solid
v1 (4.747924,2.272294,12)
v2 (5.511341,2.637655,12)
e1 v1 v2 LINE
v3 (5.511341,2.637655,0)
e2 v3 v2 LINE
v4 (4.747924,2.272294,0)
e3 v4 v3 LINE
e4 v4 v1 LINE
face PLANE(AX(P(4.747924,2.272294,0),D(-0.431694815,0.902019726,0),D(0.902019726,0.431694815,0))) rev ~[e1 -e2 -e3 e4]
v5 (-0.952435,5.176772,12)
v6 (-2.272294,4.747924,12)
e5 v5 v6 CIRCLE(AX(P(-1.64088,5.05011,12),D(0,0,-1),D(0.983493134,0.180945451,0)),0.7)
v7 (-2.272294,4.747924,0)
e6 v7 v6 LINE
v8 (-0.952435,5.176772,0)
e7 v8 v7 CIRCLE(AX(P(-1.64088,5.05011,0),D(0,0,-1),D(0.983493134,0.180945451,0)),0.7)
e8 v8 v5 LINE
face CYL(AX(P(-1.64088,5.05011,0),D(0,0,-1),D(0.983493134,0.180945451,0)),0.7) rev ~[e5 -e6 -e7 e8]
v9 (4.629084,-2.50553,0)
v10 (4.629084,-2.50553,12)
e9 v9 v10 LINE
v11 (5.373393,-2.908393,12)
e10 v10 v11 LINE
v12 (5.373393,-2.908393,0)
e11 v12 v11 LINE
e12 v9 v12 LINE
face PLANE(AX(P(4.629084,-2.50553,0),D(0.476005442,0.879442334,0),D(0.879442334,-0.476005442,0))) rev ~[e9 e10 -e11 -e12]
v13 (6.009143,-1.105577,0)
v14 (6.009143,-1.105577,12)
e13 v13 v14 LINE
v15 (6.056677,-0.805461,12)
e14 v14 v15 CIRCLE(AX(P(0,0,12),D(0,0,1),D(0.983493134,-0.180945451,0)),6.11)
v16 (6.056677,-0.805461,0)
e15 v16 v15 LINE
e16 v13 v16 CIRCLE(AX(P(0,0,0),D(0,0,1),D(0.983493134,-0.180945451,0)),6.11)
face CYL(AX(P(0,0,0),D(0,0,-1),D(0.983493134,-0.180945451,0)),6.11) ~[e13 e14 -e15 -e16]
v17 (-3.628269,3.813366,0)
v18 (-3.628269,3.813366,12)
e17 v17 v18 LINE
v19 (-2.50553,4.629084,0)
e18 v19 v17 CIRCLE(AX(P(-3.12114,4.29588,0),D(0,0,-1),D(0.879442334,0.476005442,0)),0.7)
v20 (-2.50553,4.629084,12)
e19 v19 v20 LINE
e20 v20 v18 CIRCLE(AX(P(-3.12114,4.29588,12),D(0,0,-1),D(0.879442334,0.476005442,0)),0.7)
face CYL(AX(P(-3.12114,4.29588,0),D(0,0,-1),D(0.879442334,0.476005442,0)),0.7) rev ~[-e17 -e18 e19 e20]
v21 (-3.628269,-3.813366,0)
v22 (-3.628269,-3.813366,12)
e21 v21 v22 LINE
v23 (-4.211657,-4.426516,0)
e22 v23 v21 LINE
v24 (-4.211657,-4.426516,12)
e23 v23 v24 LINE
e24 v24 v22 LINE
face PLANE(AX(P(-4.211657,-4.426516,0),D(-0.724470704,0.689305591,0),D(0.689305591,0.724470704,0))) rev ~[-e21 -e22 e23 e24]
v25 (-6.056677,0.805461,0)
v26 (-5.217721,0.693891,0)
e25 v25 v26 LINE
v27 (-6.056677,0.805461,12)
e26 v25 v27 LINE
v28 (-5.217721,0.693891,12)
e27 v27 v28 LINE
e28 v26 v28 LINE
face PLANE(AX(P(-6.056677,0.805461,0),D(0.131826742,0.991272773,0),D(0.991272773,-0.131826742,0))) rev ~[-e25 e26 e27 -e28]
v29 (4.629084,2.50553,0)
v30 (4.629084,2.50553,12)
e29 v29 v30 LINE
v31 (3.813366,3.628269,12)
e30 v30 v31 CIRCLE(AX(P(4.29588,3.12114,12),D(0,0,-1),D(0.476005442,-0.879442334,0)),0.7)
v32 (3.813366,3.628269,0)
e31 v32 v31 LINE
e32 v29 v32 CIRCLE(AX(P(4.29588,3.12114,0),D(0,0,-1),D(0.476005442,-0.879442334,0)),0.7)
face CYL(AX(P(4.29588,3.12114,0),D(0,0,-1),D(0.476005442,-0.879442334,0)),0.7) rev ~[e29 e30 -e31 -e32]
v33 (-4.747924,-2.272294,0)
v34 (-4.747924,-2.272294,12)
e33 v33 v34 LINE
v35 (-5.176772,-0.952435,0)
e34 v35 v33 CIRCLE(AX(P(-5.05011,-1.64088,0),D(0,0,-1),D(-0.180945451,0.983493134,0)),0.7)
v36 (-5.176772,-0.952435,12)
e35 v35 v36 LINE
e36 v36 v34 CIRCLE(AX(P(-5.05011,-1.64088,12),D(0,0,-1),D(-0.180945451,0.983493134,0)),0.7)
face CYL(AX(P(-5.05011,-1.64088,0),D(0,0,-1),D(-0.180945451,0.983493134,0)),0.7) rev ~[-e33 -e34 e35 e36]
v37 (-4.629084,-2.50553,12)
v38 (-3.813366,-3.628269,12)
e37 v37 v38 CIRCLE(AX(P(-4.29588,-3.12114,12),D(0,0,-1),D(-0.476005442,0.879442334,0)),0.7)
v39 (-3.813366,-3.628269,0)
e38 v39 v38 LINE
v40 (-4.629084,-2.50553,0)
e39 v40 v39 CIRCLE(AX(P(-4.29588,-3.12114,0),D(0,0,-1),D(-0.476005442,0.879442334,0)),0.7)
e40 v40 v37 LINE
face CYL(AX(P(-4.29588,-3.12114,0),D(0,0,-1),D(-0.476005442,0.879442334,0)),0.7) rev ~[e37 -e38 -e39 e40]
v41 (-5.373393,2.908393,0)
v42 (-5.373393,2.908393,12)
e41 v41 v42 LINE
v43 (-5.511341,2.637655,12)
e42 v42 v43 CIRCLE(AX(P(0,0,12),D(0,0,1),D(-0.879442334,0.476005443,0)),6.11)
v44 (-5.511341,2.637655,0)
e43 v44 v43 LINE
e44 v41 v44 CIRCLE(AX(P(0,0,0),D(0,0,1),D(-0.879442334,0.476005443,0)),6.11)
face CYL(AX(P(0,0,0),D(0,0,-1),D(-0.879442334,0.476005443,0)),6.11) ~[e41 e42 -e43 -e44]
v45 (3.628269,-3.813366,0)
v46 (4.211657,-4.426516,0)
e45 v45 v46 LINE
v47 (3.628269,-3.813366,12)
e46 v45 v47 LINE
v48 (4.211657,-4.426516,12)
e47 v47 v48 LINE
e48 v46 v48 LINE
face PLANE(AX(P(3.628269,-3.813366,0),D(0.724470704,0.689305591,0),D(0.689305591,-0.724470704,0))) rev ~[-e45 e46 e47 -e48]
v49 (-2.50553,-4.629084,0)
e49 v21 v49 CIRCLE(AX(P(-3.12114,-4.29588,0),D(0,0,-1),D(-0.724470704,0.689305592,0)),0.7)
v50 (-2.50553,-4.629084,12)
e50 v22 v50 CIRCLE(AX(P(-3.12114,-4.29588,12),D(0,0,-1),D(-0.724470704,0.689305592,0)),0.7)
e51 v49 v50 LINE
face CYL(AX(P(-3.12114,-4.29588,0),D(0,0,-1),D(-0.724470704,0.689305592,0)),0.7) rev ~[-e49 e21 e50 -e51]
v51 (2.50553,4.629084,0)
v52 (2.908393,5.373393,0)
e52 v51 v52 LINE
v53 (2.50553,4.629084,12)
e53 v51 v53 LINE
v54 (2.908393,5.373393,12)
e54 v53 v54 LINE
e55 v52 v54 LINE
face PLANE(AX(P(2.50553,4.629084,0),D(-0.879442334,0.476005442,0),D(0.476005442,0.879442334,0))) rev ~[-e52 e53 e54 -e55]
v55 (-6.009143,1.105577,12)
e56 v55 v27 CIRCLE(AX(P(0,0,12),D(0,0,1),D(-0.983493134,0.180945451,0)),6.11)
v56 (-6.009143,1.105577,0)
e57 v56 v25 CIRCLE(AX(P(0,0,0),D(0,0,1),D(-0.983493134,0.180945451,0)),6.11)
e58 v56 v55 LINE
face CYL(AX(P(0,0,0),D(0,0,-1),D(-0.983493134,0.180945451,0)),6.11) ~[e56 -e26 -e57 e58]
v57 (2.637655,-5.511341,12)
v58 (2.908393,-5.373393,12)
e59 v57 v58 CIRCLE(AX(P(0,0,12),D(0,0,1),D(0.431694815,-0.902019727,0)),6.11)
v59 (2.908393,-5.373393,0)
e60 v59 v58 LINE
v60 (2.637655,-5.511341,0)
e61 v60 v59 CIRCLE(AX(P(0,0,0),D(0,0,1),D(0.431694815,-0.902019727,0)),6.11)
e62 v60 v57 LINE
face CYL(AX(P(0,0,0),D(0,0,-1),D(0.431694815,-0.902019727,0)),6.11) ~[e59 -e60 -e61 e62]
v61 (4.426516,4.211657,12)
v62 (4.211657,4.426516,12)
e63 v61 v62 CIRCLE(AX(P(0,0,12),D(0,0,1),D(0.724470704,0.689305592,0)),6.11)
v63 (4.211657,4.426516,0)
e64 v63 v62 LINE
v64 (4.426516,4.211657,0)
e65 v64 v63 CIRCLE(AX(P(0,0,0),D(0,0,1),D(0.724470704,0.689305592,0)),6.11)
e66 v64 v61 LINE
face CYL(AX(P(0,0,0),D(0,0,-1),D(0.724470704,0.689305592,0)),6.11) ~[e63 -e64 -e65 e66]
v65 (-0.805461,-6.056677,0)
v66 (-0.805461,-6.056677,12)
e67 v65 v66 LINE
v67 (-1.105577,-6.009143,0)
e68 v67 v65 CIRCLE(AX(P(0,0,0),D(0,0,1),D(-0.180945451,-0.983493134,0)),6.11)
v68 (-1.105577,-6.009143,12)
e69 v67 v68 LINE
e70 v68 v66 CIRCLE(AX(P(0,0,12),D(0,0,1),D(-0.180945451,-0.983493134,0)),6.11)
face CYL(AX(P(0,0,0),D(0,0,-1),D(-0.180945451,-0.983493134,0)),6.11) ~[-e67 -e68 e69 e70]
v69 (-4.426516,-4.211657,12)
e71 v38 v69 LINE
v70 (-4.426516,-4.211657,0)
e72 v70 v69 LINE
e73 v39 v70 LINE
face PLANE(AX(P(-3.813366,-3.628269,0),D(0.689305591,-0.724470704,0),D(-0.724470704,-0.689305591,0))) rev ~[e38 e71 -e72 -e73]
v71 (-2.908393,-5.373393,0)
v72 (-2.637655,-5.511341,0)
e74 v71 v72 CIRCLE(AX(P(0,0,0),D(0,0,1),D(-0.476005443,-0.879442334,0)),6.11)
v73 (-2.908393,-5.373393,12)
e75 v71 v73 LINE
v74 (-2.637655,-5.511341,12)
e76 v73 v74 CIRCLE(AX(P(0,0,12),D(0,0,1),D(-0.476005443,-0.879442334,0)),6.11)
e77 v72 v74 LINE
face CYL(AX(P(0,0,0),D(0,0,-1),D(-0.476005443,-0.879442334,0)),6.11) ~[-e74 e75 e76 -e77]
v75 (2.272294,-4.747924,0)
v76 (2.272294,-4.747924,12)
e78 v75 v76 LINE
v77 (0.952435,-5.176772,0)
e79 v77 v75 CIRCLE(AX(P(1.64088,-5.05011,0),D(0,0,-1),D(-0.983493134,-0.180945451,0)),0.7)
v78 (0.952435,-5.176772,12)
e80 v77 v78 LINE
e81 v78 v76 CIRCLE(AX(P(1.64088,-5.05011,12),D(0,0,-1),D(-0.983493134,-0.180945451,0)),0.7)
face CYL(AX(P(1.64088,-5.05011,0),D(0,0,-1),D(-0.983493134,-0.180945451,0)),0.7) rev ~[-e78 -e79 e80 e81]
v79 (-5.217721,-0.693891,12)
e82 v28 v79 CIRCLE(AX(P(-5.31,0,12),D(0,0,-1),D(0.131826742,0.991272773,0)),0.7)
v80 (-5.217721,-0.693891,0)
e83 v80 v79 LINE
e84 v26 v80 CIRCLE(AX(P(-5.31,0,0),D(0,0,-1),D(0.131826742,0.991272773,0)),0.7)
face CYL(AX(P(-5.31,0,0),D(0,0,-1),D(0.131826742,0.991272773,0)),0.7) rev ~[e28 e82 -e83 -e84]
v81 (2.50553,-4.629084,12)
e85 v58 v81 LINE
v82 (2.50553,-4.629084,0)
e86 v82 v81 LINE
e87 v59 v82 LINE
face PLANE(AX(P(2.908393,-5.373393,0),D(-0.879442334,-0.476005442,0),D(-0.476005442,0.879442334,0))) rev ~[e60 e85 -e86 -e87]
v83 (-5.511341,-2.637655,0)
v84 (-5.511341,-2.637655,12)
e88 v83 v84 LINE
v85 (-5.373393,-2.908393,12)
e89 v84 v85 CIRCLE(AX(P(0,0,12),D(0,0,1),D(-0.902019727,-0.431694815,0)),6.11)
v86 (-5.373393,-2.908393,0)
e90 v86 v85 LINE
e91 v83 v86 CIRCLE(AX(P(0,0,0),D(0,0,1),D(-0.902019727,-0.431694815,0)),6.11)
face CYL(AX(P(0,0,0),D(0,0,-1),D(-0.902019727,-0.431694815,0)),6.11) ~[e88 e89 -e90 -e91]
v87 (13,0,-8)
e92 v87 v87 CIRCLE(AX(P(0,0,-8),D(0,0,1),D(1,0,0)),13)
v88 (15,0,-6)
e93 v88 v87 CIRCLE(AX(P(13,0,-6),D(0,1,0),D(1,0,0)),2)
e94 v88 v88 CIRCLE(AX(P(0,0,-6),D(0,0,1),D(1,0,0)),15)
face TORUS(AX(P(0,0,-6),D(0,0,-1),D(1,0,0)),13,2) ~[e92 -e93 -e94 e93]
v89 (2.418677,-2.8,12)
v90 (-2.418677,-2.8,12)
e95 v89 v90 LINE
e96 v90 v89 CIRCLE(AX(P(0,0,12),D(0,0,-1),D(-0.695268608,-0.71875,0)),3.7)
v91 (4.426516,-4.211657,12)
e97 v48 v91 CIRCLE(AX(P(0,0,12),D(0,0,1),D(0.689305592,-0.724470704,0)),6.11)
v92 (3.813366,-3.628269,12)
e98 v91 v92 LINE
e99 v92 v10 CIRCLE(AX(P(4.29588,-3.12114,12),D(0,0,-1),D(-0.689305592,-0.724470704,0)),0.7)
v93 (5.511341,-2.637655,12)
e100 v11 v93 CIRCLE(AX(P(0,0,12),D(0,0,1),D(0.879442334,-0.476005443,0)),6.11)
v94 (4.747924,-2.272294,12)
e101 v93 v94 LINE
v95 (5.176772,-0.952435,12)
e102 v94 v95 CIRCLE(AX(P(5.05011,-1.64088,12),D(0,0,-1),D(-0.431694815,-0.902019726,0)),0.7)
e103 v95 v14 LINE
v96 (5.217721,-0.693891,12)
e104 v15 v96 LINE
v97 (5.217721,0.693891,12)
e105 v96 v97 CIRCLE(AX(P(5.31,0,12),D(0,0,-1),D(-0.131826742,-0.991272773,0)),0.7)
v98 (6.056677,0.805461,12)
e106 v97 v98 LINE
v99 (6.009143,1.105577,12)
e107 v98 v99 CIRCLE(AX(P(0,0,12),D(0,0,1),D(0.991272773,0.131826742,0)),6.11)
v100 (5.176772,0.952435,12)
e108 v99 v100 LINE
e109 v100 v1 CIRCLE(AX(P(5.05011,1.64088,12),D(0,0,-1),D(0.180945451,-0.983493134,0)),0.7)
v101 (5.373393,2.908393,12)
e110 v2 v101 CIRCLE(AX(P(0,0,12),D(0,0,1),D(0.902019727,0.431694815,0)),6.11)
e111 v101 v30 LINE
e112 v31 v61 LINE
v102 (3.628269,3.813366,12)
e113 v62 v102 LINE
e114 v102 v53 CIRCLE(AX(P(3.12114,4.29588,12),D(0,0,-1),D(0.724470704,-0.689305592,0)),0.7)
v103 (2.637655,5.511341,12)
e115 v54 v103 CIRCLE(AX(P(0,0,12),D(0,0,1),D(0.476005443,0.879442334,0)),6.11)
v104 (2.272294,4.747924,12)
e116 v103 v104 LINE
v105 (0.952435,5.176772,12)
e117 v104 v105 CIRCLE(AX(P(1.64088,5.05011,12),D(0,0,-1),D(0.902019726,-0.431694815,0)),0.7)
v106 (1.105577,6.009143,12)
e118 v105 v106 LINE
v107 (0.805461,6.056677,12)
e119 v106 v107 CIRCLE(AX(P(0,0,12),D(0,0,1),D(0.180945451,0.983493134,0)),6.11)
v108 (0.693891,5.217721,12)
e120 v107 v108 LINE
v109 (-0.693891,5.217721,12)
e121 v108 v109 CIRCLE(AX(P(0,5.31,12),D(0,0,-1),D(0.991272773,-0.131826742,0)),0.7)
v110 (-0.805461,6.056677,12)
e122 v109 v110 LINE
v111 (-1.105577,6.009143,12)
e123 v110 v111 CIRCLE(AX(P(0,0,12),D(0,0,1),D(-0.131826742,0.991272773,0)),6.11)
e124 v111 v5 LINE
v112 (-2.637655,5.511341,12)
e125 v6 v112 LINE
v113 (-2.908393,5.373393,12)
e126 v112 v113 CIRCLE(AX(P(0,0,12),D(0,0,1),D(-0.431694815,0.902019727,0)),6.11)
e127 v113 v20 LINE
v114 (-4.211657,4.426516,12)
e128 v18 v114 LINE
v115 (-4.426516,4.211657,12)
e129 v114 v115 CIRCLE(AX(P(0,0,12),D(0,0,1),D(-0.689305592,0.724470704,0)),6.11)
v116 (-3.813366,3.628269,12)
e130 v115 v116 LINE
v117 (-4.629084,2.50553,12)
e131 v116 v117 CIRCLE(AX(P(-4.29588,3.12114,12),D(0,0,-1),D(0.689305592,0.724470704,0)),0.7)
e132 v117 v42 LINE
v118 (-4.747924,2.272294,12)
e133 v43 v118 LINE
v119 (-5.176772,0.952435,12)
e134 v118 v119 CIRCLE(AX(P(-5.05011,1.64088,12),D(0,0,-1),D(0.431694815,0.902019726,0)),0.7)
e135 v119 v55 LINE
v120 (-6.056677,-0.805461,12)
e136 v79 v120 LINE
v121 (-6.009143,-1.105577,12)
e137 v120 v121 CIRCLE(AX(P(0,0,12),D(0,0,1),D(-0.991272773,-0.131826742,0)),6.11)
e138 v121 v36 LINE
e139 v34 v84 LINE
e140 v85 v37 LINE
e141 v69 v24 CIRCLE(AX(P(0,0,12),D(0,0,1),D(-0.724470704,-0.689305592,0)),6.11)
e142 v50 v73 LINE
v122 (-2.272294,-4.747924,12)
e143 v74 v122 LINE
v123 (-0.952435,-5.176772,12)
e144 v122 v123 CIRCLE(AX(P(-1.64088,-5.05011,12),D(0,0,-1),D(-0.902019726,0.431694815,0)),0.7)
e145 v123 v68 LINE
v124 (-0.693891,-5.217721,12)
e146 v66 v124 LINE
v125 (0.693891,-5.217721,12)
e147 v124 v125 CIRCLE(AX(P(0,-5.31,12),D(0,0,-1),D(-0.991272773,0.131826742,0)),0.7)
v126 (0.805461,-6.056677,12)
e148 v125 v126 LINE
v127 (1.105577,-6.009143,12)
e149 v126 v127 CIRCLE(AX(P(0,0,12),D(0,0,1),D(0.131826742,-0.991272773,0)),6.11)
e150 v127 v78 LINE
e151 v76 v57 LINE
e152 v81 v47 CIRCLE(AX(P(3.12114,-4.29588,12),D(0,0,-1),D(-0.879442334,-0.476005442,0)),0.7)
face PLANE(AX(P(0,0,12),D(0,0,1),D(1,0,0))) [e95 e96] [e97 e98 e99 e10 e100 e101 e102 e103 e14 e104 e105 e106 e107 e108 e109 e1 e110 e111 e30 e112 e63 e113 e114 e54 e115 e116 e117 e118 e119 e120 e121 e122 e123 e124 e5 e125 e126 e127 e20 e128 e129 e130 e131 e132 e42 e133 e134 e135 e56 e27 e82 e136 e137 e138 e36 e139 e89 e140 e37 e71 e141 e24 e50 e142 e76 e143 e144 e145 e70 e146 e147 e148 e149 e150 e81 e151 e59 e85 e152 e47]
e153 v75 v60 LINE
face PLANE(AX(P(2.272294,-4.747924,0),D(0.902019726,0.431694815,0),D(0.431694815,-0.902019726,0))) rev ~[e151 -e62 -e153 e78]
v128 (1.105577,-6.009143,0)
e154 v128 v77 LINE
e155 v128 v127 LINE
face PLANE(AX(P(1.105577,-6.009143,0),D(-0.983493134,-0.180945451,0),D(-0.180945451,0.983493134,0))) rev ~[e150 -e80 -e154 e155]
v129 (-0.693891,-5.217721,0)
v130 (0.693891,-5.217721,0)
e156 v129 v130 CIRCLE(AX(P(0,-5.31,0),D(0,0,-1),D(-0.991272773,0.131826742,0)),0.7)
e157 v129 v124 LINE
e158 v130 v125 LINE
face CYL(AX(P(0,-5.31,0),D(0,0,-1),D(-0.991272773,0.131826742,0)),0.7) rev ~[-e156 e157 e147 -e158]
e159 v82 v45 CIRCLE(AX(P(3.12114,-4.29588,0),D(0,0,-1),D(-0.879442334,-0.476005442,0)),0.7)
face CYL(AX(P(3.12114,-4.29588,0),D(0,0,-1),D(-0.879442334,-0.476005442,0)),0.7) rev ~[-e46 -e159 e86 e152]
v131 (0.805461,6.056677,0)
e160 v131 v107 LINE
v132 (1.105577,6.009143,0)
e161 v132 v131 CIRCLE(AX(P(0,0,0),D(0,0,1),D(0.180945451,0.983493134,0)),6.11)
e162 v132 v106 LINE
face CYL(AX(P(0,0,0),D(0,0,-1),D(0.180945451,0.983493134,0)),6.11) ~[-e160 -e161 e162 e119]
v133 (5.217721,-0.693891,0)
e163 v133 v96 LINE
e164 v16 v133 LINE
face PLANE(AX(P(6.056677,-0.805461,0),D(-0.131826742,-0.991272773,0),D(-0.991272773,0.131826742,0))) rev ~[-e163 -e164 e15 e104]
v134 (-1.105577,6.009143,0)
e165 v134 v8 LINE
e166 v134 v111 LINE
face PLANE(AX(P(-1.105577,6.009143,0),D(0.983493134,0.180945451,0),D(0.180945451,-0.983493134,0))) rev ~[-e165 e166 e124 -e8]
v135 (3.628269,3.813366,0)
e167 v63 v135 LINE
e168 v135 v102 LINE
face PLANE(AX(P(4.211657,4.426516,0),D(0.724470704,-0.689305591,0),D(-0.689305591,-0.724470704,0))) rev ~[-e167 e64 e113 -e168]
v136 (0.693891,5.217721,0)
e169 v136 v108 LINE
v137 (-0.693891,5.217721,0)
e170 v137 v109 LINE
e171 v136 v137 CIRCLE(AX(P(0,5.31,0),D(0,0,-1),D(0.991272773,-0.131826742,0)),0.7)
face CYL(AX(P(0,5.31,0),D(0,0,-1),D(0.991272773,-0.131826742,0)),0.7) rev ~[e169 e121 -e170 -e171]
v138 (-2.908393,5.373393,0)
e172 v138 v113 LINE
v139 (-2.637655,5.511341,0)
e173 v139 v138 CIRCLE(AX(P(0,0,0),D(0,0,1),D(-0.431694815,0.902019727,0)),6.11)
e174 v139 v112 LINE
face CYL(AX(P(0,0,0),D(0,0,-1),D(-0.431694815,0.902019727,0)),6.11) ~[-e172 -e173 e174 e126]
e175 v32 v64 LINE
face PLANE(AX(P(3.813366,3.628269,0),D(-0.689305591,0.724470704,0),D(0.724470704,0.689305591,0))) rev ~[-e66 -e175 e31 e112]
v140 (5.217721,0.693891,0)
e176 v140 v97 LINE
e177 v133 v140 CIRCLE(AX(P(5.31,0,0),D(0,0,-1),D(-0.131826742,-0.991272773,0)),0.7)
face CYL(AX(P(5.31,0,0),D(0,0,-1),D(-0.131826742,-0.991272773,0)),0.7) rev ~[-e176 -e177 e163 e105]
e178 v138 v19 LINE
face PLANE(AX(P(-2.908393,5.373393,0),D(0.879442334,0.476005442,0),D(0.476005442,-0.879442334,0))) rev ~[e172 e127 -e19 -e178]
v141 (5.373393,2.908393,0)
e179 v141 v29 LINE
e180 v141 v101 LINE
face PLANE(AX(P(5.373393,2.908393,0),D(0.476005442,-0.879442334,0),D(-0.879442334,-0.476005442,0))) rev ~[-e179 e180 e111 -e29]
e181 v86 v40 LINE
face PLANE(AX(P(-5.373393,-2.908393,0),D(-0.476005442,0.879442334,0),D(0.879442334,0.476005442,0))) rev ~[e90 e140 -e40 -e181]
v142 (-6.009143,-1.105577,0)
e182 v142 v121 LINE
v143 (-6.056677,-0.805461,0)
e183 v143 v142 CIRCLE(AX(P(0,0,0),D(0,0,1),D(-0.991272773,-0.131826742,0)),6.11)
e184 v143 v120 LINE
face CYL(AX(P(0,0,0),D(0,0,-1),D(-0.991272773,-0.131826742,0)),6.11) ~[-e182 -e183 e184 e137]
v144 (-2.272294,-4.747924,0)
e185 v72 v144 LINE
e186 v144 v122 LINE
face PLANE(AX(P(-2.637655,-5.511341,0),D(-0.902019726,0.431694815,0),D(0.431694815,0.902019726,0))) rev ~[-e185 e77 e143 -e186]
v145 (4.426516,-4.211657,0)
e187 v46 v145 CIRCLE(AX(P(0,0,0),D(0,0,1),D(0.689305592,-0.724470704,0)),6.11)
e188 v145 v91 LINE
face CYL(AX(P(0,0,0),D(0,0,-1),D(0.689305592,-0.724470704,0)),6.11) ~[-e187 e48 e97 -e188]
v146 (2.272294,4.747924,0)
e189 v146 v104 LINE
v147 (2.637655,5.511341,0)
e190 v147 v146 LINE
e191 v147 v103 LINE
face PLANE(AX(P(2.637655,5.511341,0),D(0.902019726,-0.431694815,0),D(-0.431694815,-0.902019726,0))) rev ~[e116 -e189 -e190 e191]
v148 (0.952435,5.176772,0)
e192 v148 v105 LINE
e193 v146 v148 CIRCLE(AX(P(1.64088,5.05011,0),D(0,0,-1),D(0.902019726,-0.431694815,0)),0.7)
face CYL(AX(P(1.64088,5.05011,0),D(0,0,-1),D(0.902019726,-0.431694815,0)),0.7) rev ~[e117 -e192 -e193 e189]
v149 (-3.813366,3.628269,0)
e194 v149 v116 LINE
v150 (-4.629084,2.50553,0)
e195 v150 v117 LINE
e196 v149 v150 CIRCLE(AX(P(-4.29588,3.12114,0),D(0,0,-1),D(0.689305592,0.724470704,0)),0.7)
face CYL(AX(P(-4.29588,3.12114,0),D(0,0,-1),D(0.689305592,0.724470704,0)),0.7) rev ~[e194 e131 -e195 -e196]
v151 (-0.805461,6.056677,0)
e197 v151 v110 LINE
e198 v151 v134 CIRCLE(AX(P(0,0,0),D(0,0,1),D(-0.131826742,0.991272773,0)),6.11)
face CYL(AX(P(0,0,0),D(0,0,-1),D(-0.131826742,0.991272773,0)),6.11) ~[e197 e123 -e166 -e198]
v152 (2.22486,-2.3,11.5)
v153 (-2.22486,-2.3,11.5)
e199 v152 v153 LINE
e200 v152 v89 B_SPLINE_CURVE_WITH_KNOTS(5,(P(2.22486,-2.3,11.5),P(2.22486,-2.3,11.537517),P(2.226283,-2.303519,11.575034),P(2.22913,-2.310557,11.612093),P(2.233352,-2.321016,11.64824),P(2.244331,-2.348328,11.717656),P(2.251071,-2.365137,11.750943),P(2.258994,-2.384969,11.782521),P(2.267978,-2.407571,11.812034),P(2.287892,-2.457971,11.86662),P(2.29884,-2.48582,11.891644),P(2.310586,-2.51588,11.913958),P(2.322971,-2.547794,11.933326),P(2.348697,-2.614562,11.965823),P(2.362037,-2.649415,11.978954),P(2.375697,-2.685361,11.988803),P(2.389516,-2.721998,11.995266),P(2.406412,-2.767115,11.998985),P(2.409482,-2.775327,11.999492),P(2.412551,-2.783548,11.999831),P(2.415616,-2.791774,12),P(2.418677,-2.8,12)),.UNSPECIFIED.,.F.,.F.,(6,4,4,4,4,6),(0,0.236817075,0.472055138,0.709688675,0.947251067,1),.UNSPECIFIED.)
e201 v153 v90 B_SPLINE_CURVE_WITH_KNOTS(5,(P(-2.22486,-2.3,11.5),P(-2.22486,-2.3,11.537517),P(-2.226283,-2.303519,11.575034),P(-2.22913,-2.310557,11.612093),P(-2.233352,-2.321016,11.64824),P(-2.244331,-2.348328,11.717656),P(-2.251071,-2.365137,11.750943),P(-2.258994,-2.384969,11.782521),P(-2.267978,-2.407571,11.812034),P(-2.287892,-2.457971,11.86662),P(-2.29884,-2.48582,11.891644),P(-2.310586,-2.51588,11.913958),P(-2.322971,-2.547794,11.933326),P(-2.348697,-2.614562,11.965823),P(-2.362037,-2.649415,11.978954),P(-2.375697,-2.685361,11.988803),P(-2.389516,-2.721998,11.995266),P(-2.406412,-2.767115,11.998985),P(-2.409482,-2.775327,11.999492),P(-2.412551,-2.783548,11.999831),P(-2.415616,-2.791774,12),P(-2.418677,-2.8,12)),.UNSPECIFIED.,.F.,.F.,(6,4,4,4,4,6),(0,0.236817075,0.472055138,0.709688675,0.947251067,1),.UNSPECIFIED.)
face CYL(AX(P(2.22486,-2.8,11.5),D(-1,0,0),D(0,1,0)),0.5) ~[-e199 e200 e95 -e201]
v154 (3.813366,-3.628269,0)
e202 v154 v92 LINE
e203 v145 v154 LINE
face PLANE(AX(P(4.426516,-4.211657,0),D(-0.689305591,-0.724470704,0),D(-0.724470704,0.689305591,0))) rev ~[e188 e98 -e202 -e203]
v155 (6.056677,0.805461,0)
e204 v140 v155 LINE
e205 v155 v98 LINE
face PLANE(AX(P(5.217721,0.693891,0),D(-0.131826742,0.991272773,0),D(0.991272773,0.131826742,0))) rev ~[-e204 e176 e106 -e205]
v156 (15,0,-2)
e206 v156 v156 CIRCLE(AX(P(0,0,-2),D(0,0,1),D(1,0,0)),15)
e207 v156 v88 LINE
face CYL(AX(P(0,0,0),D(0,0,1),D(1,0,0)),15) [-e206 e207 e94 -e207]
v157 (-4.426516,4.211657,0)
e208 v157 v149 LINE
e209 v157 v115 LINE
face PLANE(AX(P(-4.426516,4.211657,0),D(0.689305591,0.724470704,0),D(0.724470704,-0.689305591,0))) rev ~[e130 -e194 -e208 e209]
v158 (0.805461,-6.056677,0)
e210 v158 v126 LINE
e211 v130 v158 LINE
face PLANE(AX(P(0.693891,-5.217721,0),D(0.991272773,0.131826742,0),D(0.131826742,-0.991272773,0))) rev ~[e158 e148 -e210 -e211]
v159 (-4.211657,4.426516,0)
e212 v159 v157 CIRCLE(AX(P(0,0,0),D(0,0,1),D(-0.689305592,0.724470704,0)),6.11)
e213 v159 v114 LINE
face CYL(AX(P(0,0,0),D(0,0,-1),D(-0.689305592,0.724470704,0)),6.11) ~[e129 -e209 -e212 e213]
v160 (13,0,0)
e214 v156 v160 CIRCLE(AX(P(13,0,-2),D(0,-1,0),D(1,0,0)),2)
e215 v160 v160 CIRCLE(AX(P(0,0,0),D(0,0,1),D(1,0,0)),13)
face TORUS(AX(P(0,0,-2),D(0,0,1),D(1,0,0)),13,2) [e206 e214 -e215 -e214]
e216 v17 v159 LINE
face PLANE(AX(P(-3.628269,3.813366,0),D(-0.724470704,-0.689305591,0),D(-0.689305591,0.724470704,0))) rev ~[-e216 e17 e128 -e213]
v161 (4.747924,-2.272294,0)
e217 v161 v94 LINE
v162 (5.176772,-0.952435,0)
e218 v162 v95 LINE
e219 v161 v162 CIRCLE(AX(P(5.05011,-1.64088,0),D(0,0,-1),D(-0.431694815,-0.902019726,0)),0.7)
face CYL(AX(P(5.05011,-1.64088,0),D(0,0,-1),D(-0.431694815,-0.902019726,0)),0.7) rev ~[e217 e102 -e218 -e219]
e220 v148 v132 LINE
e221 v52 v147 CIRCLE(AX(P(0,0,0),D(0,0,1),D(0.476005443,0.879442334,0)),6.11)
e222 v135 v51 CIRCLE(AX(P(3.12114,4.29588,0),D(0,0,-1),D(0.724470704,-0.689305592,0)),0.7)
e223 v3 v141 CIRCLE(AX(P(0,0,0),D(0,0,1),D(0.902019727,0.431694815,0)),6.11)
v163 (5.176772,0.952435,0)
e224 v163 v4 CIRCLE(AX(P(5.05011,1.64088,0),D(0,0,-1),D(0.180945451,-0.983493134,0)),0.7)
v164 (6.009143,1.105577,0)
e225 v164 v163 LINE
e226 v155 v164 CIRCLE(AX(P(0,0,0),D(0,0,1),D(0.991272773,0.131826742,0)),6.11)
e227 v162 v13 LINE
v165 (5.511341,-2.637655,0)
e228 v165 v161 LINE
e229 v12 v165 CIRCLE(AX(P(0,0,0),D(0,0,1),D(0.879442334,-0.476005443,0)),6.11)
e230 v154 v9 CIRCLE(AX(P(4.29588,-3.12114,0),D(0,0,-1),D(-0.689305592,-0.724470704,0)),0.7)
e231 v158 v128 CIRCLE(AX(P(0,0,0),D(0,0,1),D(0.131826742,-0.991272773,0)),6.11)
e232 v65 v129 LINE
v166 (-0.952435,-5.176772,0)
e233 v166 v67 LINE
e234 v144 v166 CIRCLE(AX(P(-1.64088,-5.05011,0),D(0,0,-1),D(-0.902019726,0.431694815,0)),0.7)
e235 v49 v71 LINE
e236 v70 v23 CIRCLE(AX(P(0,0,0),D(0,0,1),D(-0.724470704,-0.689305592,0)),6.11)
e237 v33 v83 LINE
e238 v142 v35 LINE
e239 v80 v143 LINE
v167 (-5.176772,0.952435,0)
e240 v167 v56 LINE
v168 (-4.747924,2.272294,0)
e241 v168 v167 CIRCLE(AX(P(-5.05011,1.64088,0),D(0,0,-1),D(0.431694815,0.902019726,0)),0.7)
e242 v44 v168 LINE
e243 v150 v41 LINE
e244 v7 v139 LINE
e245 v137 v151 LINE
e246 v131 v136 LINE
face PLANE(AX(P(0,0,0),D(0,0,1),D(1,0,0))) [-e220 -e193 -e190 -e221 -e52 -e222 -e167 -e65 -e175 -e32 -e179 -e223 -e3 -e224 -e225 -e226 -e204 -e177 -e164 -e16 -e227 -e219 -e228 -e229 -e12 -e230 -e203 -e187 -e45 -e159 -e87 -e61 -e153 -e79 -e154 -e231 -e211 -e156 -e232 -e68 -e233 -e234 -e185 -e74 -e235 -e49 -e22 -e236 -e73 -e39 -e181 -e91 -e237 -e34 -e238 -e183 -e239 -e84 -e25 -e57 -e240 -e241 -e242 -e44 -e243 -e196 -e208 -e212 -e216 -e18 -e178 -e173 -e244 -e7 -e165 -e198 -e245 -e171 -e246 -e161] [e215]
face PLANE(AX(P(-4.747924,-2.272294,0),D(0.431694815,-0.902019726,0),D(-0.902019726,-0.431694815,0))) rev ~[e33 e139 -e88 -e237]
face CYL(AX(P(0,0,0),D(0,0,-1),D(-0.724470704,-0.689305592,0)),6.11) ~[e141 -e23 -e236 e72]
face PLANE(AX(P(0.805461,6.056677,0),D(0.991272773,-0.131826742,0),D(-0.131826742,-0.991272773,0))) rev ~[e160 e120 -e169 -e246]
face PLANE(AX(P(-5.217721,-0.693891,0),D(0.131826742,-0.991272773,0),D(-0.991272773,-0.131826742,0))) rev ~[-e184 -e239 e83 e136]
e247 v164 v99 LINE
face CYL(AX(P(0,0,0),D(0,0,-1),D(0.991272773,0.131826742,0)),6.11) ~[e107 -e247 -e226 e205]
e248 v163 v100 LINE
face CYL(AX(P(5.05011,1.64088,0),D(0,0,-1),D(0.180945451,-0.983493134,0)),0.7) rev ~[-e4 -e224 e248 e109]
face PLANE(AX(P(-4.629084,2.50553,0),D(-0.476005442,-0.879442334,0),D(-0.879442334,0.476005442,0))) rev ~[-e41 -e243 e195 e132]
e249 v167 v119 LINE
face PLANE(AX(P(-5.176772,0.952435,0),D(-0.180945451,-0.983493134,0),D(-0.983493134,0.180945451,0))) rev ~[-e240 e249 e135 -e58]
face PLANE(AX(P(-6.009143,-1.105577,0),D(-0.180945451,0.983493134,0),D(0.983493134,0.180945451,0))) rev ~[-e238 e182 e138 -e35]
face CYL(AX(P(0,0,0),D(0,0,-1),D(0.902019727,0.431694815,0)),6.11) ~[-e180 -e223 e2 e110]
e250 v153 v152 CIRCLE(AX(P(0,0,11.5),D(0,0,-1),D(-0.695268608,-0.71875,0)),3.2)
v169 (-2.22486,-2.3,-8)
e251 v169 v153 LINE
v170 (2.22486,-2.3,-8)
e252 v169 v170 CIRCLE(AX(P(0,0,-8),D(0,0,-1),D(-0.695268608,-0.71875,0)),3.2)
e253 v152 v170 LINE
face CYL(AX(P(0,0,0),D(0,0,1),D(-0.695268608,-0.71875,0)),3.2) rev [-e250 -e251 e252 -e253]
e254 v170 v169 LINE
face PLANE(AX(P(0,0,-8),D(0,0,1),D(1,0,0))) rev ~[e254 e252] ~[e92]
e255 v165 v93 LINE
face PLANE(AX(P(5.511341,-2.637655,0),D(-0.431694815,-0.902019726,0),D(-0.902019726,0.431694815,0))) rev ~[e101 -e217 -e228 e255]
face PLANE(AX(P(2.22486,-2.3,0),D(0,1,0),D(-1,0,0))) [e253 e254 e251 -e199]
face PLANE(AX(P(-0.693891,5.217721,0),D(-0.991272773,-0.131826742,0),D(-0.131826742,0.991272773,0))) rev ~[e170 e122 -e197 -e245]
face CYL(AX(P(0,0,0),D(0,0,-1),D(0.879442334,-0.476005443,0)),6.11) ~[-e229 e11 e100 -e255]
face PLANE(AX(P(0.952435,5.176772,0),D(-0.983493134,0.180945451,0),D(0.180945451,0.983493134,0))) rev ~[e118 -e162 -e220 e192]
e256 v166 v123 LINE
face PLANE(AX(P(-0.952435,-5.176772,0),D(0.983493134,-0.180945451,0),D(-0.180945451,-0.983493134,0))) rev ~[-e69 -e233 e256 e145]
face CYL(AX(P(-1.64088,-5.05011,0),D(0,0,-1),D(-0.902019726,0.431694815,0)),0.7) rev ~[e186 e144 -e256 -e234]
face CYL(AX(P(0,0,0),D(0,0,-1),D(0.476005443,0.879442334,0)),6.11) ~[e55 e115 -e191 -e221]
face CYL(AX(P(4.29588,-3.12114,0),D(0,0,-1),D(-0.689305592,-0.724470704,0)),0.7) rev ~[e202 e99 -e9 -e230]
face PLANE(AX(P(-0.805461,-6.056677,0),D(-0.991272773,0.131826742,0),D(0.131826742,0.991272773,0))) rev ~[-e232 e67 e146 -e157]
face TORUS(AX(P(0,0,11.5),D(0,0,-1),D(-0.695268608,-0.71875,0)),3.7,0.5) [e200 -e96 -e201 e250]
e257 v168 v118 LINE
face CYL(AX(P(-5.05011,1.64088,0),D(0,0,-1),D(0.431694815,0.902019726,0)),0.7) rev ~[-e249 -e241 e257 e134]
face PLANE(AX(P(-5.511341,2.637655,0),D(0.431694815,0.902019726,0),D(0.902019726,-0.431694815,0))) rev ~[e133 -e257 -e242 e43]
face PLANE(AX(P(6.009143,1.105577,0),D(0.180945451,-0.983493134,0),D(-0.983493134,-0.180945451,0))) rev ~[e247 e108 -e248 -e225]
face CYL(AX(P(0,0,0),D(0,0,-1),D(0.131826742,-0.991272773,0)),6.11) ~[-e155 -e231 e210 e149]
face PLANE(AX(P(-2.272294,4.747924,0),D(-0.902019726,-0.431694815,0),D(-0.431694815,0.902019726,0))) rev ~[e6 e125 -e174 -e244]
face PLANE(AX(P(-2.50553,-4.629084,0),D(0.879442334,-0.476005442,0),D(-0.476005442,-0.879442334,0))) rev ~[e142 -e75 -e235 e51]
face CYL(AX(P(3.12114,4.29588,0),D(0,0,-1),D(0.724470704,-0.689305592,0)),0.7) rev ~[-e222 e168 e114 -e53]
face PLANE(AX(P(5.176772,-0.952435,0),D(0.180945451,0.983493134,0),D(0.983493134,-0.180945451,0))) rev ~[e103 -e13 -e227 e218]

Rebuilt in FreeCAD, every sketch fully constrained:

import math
import FreeCAD as App
import Part
import Sketcher

V = App.Vector


def edges_at(feature, points):
    """Names of the edges that pass closest to the given points."""
    edges = feature.Shape.Edges
    near = lambda p: min(range(len(edges)), key=lambda i: edges[i].distToShape(Part.Vertex(*p))[0])
    return sorted({f"Edge{near(p) + 1}" for p in points})

doc = App.newDocument("Part")
body = doc.addObject("PartDesign::Body", "Body")

# Sketch on XY plane
sketch1 = body.newObject("Sketcher::SketchObject", "Sketch")
sketch1.AttachmentSupport = (doc.getObject("XY_Plane"), [""])
sketch1.MapMode = "FlatFace"
sketch1.addGeometry([
    Part.LineSegment(V(5.22, 0.69, 0), V(6.06, 0.81, 0)),  # 0
    Part.ArcOfCircle(Part.Circle(V(0, 0, 0), V(0, 0, 1), 6.11), math.radians(7.58), math.radians(10.42)),  # 1
    Part.LineSegment(V(6.01, 1.11, 0), V(5.18, 0.95, 0)),  # 2
    Part.ArcOfCircle(Part.Circle(V(5.05, 1.64, 0), V(0, 0, 1), 0.7), math.radians(116), math.radians(280)),  # 3
    Part.LineSegment(V(4.75, 2.27, 0), V(5.51, 2.64, 0)),  # 4
    Part.ArcOfCircle(Part.Circle(V(0, 0, 0), V(0, 0, 1), 6.11), math.radians(25.58), math.radians(28.42)),  # 5
    Part.LineSegment(V(5.37, 2.91, 0), V(4.63, 2.51, 0)),  # 6
    Part.ArcOfCircle(Part.Circle(V(4.3, 3.12, 0), V(0, 0, 1), 0.7), math.radians(134), math.radians(298)),  # 7
    Part.LineSegment(V(3.81, 3.63, 0), V(4.43, 4.21, 0)),  # 8
    Part.ArcOfCircle(Part.Circle(V(0, 0, 0), V(0, 0, 1), 6.11), math.radians(43.58), math.radians(46.42)),  # 9
    Part.LineSegment(V(4.21, 4.43, 0), V(3.63, 3.81, 0)),  # 10
    Part.ArcOfCircle(Part.Circle(V(3.12, 4.3, 0), V(0, 0, 1), 0.7), math.radians(152), math.radians(316)),  # 11
    Part.LineSegment(V(2.51, 4.63, 0), V(2.91, 5.37, 0)),  # 12
    Part.ArcOfCircle(Part.Circle(V(0, 0, 0), V(0, 0, 1), 6.11), math.radians(61.58), math.radians(64.42)),  # 13
    Part.LineSegment(V(2.64, 5.51, 0), V(2.27, 4.75, 0)),  # 14
    Part.ArcOfCircle(Part.Circle(V(1.64, 5.05, 0), V(0, 0, 1), 0.7), math.radians(170), math.radians(334)),  # 15
    Part.LineSegment(V(0.95, 5.18, 0), V(1.11, 6.01, 0)),  # 16
    Part.ArcOfCircle(Part.Circle(V(0, 0, 0), V(0, 0, 1), 6.11), math.radians(79.58), math.radians(82.42)),  # 17
    Part.LineSegment(V(0.81, 6.06, 0), V(0.69, 5.22, 0)),  # 18
    Part.ArcOfCircle(Part.Circle(V(0, 5.31, 0), V(0, 0, 1), 0.7), math.radians(-172), math.radians(-8)),  # 19
    Part.LineSegment(V(-0.69, 5.22, 0), V(-0.81, 6.06, 0)),  # 20
    Part.ArcOfCircle(Part.Circle(V(0, 0, 0), V(0, 0, 1), 6.11), math.radians(97.58), math.radians(100.42)),  # 21
    Part.LineSegment(V(-1.11, 6.01, 0), V(-0.95, 5.18, 0)),  # 22
    Part.ArcOfCircle(Part.Circle(V(-1.64, 5.05, 0), V(0, 0, 1), 0.7), math.radians(-154), math.radians(10)),  # 23
    Part.LineSegment(V(-2.27, 4.75, 0), V(-2.64, 5.51, 0)),  # 24
    Part.ArcOfCircle(Part.Circle(V(0, 0, 0), V(0, 0, 1), 6.11), math.radians(115.58), math.radians(118.42)),  # 25
    Part.LineSegment(V(-2.91, 5.37, 0), V(-2.51, 4.63, 0)),  # 26
    Part.ArcOfCircle(Part.Circle(V(-3.12, 4.3, 0), V(0, 0, 1), 0.7), math.radians(-136), math.radians(28)),  # 27
    Part.LineSegment(V(-3.63, 3.81, 0), V(-4.21, 4.43, 0)),  # 28
    Part.ArcOfCircle(Part.Circle(V(0, 0, 0), V(0, 0, 1), 6.11), math.radians(133.58), math.radians(136.42)),  # 29
    Part.LineSegment(V(-4.43, 4.21, 0), V(-3.81, 3.63, 0)),  # 30
    Part.ArcOfCircle(Part.Circle(V(-4.3, 3.12, 0), V(0, 0, 1), 0.7), math.radians(-118), math.radians(46)),  # 31
    Part.LineSegment(V(-4.63, 2.51, 0), V(-5.37, 2.91, 0)),  # 32
    Part.ArcOfCircle(Part.Circle(V(0, 0, 0), V(0, 0, 1), 6.11), math.radians(151.58), math.radians(154.42)),  # 33
    Part.LineSegment(V(-5.51, 2.64, 0), V(-4.75, 2.27, 0)),  # 34
    Part.ArcOfCircle(Part.Circle(V(-5.05, 1.64, 0), V(0, 0, 1), 0.7), math.radians(-100), math.radians(64)),  # 35
    Part.LineSegment(V(-5.18, 0.95, 0), V(-6.01, 1.11, 0)),  # 36
    Part.ArcOfCircle(Part.Circle(V(0, 0, 0), V(0, 0, 1), 6.11), math.radians(169.58), math.radians(172.42)),  # 37
    Part.LineSegment(V(-6.06, 0.81, 0), V(-5.22, 0.69, 0)),  # 38
    Part.ArcOfCircle(Part.Circle(V(-5.31, 0, 0), V(0, 0, 1), 0.7), math.radians(-82), math.radians(82)),  # 39
    Part.LineSegment(V(-5.22, -0.69, 0), V(-6.06, -0.81, 0)),  # 40
    Part.ArcOfCircle(Part.Circle(V(0, 0, 0), V(0, 0, 1), 6.11), math.radians(-172.42), math.radians(-169.58)),  # 41
    Part.LineSegment(V(-6.01, -1.11, 0), V(-5.18, -0.95, 0)),  # 42
    Part.ArcOfCircle(Part.Circle(V(-5.05, -1.64, 0), V(0, 0, 1), 0.7), math.radians(-64), math.radians(100)),  # 43
    Part.LineSegment(V(-4.75, -2.27, 0), V(-5.51, -2.64, 0)),  # 44
    Part.ArcOfCircle(Part.Circle(V(0, 0, 0), V(0, 0, 1), 6.11), math.radians(-154.42), math.radians(-151.58)),  # 45
    Part.LineSegment(V(-5.37, -2.91, 0), V(-4.63, -2.51, 0)),  # 46
    Part.ArcOfCircle(Part.Circle(V(-4.3, -3.12, 0), V(0, 0, 1), 0.7), math.radians(-46), math.radians(118)),  # 47
    Part.LineSegment(V(-3.81, -3.63, 0), V(-4.43, -4.21, 0)),  # 48
    Part.ArcOfCircle(Part.Circle(V(0, 0, 0), V(0, 0, 1), 6.11), math.radians(-136.42), math.radians(-133.58)),  # 49
    Part.LineSegment(V(-4.21, -4.43, 0), V(-3.63, -3.81, 0)),  # 50
    Part.ArcOfCircle(Part.Circle(V(-3.12, -4.3, 0), V(0, 0, 1), 0.7), math.radians(-28), math.radians(136)),  # 51
    Part.LineSegment(V(-2.51, -4.63, 0), V(-2.91, -5.37, 0)),  # 52
    Part.ArcOfCircle(Part.Circle(V(0, 0, 0), V(0, 0, 1), 6.11), math.radians(-118.42), math.radians(-115.58)),  # 53
    Part.LineSegment(V(-2.64, -5.51, 0), V(-2.27, -4.75, 0)),  # 54
    Part.ArcOfCircle(Part.Circle(V(-1.64, -5.05, 0), V(0, 0, 1), 0.7), math.radians(-10), math.radians(154)),  # 55
    Part.LineSegment(V(-0.95, -5.18, 0), V(-1.11, -6.01, 0)),  # 56
    Part.ArcOfCircle(Part.Circle(V(0, 0, 0), V(0, 0, 1), 6.11), math.radians(-100.42), math.radians(-97.58)),  # 57
    Part.LineSegment(V(-0.81, -6.06, 0), V(-0.69, -5.22, 0)),  # 58
    Part.ArcOfCircle(Part.Circle(V(0, -5.31, 0), V(0, 0, 1), 0.7), math.radians(8), math.radians(172)),  # 59
    Part.LineSegment(V(0.69, -5.22, 0), V(0.81, -6.06, 0)),  # 60
    Part.ArcOfCircle(Part.Circle(V(0, 0, 0), V(0, 0, 1), 6.11), math.radians(-82.42), math.radians(-79.58)),  # 61
    Part.LineSegment(V(1.11, -6.01, 0), V(0.95, -5.18, 0)),  # 62
    Part.ArcOfCircle(Part.Circle(V(1.64, -5.05, 0), V(0, 0, 1), 0.7), math.radians(26), math.radians(190)),  # 63
    Part.LineSegment(V(2.27, -4.75, 0), V(2.64, -5.51, 0)),  # 64
    Part.ArcOfCircle(Part.Circle(V(0, 0, 0), V(0, 0, 1), 6.11), math.radians(-64.42), math.radians(-61.58)),  # 65
    Part.LineSegment(V(2.91, -5.37, 0), V(2.51, -4.63, 0)),  # 66
    Part.ArcOfCircle(Part.Circle(V(3.12, -4.3, 0), V(0, 0, 1), 0.7), math.radians(44), math.radians(208)),  # 67
    Part.LineSegment(V(3.63, -3.81, 0), V(4.21, -4.43, 0)),  # 68
    Part.ArcOfCircle(Part.Circle(V(0, 0, 0), V(0, 0, 1), 6.11), math.radians(-46.42), math.radians(-43.58)),  # 69
    Part.LineSegment(V(4.43, -4.21, 0), V(3.81, -3.63, 0)),  # 70
    Part.ArcOfCircle(Part.Circle(V(4.3, -3.12, 0), V(0, 0, 1), 0.7), math.radians(62), math.radians(226)),  # 71
    Part.LineSegment(V(4.63, -2.51, 0), V(5.37, -2.91, 0)),  # 72
    Part.ArcOfCircle(Part.Circle(V(0, 0, 0), V(0, 0, 1), 6.11), math.radians(-28.42), math.radians(-25.58)),  # 73
    Part.LineSegment(V(5.51, -2.64, 0), V(4.75, -2.27, 0)),  # 74
    Part.ArcOfCircle(Part.Circle(V(5.05, -1.64, 0), V(0, 0, 1), 0.7), math.radians(80), math.radians(244)),  # 75
    Part.LineSegment(V(5.18, -0.95, 0), V(6.01, -1.11, 0)),  # 76
    Part.ArcOfCircle(Part.Circle(V(0, 0, 0), V(0, 0, 1), 6.11), math.radians(-10.42), math.radians(-7.58)),  # 77
    Part.LineSegment(V(6.06, -0.81, 0), V(5.22, -0.69, 0)),  # 78
    Part.ArcOfCircle(Part.Circle(V(5.31, 0, 0), V(0, 0, 1), 0.7), math.radians(98), math.radians(262)),  # 79
    Part.LineSegment(V(2.22, -2.3, 0), V(-2.22, -2.3, 0)),  # 80
    Part.ArcOfCircle(Part.Circle(V(0, 0, 0), V(0, 0, 1), 3.2), math.radians(-46), math.radians(226)),  # 81
], False)
sketch1.addConstraint([
    Sketcher.Constraint("Coincident", 0, 2, 1, 1),
    Sketcher.Constraint("Coincident", 1, 2, 2, 1),
    Sketcher.Constraint("Tangent", 2, 2, 3, 2),
    Sketcher.Constraint("Tangent", 3, 1, 4, 1),
    Sketcher.Constraint("Coincident", 4, 2, 5, 1),
    Sketcher.Constraint("Coincident", 5, 2, 6, 1),
    Sketcher.Constraint("Tangent", 6, 2, 7, 2),
    Sketcher.Constraint("Tangent", 7, 1, 8, 1),
    Sketcher.Constraint("Coincident", 8, 2, 9, 1),
    Sketcher.Constraint("Coincident", 9, 2, 10, 1),
    Sketcher.Constraint("Tangent", 10, 2, 11, 2),
    Sketcher.Constraint("Tangent", 11, 1, 12, 1),
    Sketcher.Constraint("Coincident", 12, 2, 13, 1),
    Sketcher.Constraint("Coincident", 13, 2, 14, 1),
    Sketcher.Constraint("Tangent", 14, 2, 15, 2),
    Sketcher.Constraint("Tangent", 15, 1, 16, 1),
    Sketcher.Constraint("Coincident", 16, 2, 17, 1),
    Sketcher.Constraint("Coincident", 17, 2, 18, 1),
    Sketcher.Constraint("Tangent", 18, 2, 19, 2),
    Sketcher.Constraint("Tangent", 19, 1, 20, 1),
    Sketcher.Constraint("Coincident", 20, 2, 21, 1),
    Sketcher.Constraint("Coincident", 21, 2, 22, 1),
    Sketcher.Constraint("Tangent", 22, 2, 23, 2),
    Sketcher.Constraint("Tangent", 23, 1, 24, 1),
    Sketcher.Constraint("Coincident", 24, 2, 25, 1),
    Sketcher.Constraint("Coincident", 25, 2, 26, 1),
    Sketcher.Constraint("Tangent", 26, 2, 27, 2),
    Sketcher.Constraint("Tangent", 27, 1, 28, 1),
    Sketcher.Constraint("Coincident", 28, 2, 29, 1),
    Sketcher.Constraint("Coincident", 29, 2, 30, 1),
    Sketcher.Constraint("Tangent", 30, 2, 31, 2),
    Sketcher.Constraint("Tangent", 31, 1, 32, 1),
    Sketcher.Constraint("Coincident", 32, 2, 33, 1),
    Sketcher.Constraint("Coincident", 33, 2, 34, 1),
    Sketcher.Constraint("Tangent", 34, 2, 35, 2),
    Sketcher.Constraint("Tangent", 35, 1, 36, 1),
    Sketcher.Constraint("Coincident", 36, 2, 37, 1),
    Sketcher.Constraint("Coincident", 37, 2, 38, 1),
    Sketcher.Constraint("Tangent", 38, 2, 39, 2),
    Sketcher.Constraint("Tangent", 39, 1, 40, 1),
    Sketcher.Constraint("Coincident", 40, 2, 41, 1),
    Sketcher.Constraint("Coincident", 41, 2, 42, 1),
    Sketcher.Constraint("Tangent", 42, 2, 43, 2),
    Sketcher.Constraint("Tangent", 43, 1, 44, 1),
    Sketcher.Constraint("Coincident", 44, 2, 45, 1),
    Sketcher.Constraint("Coincident", 45, 2, 46, 1),
    Sketcher.Constraint("Tangent", 46, 2, 47, 2),
    Sketcher.Constraint("Tangent", 47, 1, 48, 1),
    Sketcher.Constraint("Coincident", 48, 2, 49, 1),
    Sketcher.Constraint("Coincident", 49, 2, 50, 1),
    Sketcher.Constraint("Tangent", 50, 2, 51, 2),
    Sketcher.Constraint("Tangent", 51, 1, 52, 1),
    Sketcher.Constraint("Coincident", 52, 2, 53, 1),
    Sketcher.Constraint("Coincident", 53, 2, 54, 1),
    Sketcher.Constraint("Tangent", 54, 2, 55, 2),
    Sketcher.Constraint("Tangent", 55, 1, 56, 1),
    Sketcher.Constraint("Coincident", 56, 2, 57, 1),
    Sketcher.Constraint("Coincident", 57, 2, 58, 1),
    Sketcher.Constraint("Tangent", 58, 2, 59, 2),
    Sketcher.Constraint("Tangent", 59, 1, 60, 1),
    Sketcher.Constraint("Coincident", 60, 2, 61, 1),
    Sketcher.Constraint("Coincident", 61, 2, 62, 1),
    Sketcher.Constraint("Tangent", 62, 2, 63, 2),
    Sketcher.Constraint("Tangent", 63, 1, 64, 1),
    Sketcher.Constraint("Coincident", 64, 2, 65, 1),
    Sketcher.Constraint("Coincident", 65, 2, 66, 1),
    Sketcher.Constraint("Tangent", 66, 2, 67, 2),
    Sketcher.Constraint("Tangent", 67, 1, 68, 1),
    Sketcher.Constraint("Coincident", 68, 2, 69, 1),
    Sketcher.Constraint("Coincident", 69, 2, 70, 1),
    Sketcher.Constraint("Tangent", 70, 2, 71, 2),
    Sketcher.Constraint("Tangent", 71, 1, 72, 1),
    Sketcher.Constraint("Coincident", 72, 2, 73, 1),
    Sketcher.Constraint("Coincident", 73, 2, 74, 1),
    Sketcher.Constraint("Tangent", 74, 2, 75, 2),
    Sketcher.Constraint("Tangent", 75, 1, 76, 1),
    Sketcher.Constraint("Coincident", 76, 2, 77, 1),
    Sketcher.Constraint("Coincident", 77, 2, 78, 1),
    Sketcher.Constraint("Tangent", 78, 2, 79, 2),
    Sketcher.Constraint("Tangent", 79, 1, 0, 1),
    Sketcher.Constraint("Coincident", 80, 1, 81, 1),
    Sketcher.Constraint("Coincident", 81, 2, 80, 2),
    Sketcher.Constraint("Horizontal", 80),
    Sketcher.Constraint("Coincident", 1, 3, -1, 1),
    Sketcher.Constraint("Coincident", 5, 3, -1, 1),
    Sketcher.Constraint("Coincident", 9, 3, -1, 1),
    Sketcher.Constraint("Coincident", 13, 3, -1, 1),
    Sketcher.Constraint("Coincident", 17, 3, -1, 1),
    Sketcher.Constraint("Coincident", 21, 3, -1, 1),
    Sketcher.Constraint("Coincident", 25, 3, -1, 1),
    Sketcher.Constraint("Coincident", 29, 3, -1, 1),
    Sketcher.Constraint("Coincident", 33, 3, -1, 1),
    Sketcher.Constraint("Coincident", 37, 3, -1, 1),
    Sketcher.Constraint("Coincident", 41, 3, -1, 1),
    Sketcher.Constraint("Coincident", 45, 3, -1, 1),
    Sketcher.Constraint("Coincident", 49, 3, -1, 1),
    Sketcher.Constraint("Coincident", 53, 3, -1, 1),
    Sketcher.Constraint("Coincident", 57, 3, -1, 1),
    Sketcher.Constraint("Coincident", 61, 3, -1, 1),
    Sketcher.Constraint("Coincident", 65, 3, -1, 1),
    Sketcher.Constraint("Coincident", 69, 3, -1, 1),
    Sketcher.Constraint("Coincident", 73, 3, -1, 1),
    Sketcher.Constraint("Coincident", 77, 3, -1, 1),
    Sketcher.Constraint("Coincident", 81, 3, -1, 1),
    Sketcher.Constraint("Equal", 1, 5),
    Sketcher.Constraint("Equal", 3, 7),
    Sketcher.Constraint("Equal", 5, 9),
    Sketcher.Constraint("Equal", 7, 11),
    Sketcher.Constraint("Equal", 9, 13),
    Sketcher.Constraint("Equal", 11, 15),
    Sketcher.Constraint("Equal", 13, 17),
    Sketcher.Constraint("Equal", 15, 19),
    Sketcher.Constraint("Equal", 17, 21),
    Sketcher.Constraint("Equal", 19, 23),
    Sketcher.Constraint("Equal", 21, 25),
    Sketcher.Constraint("Equal", 23, 27),
    Sketcher.Constraint("Equal", 25, 29),
    Sketcher.Constraint("Equal", 27, 31),
    Sketcher.Constraint("Equal", 29, 33),
    Sketcher.Constraint("Equal", 31, 35),
    Sketcher.Constraint("Equal", 33, 37),
    Sketcher.Constraint("Equal", 35, 39),
    Sketcher.Constraint("Equal", 37, 41),
    Sketcher.Constraint("Equal", 39, 43),
    Sketcher.Constraint("Equal", 41, 45),
    Sketcher.Constraint("Equal", 43, 47),
    Sketcher.Constraint("Equal", 45, 49),
    Sketcher.Constraint("Equal", 47, 51),
    Sketcher.Constraint("Equal", 49, 53),
    Sketcher.Constraint("Equal", 51, 55),
    Sketcher.Constraint("Equal", 53, 57),
    Sketcher.Constraint("Equal", 55, 59),
    Sketcher.Constraint("Equal", 57, 61),
    Sketcher.Constraint("Equal", 59, 63),
    Sketcher.Constraint("Equal", 61, 65),
    Sketcher.Constraint("Equal", 63, 67),
    Sketcher.Constraint("Equal", 65, 69),
    Sketcher.Constraint("Equal", 67, 71),
    Sketcher.Constraint("Equal", 69, 73),
    Sketcher.Constraint("Equal", 71, 75),
    Sketcher.Constraint("Equal", 73, 77),
    Sketcher.Constraint("Equal", 75, 79),
    Sketcher.Constraint("Symmetric", 3, 3, 43, 3, -1, 1),
    Sketcher.Constraint("Symmetric", 7, 3, 47, 3, -1, 1),
    Sketcher.Constraint("Symmetric", 11, 3, 51, 3, -1, 1),
    Sketcher.Constraint("Symmetric", 15, 3, 55, 3, -1, 1),
    Sketcher.Constraint("Symmetric", 19, 3, 59, 3, -1, 1),
    Sketcher.Constraint("Symmetric", 23, 3, 63, 3, -1, 1),
    Sketcher.Constraint("Symmetric", 27, 3, 67, 3, -1, 1),
    Sketcher.Constraint("Symmetric", 31, 3, 71, 3, -1, 1),
    Sketcher.Constraint("Symmetric", 35, 3, 75, 3, -1, 1),
    Sketcher.Constraint("Symmetric", 39, 3, 79, 3, -1, 1),
    Sketcher.Constraint("Symmetric", 15, 3, 23, 3, -2),
    Sketcher.Constraint("Symmetric", 11, 3, 27, 3, -2),
    Sketcher.Constraint("Symmetric", 7, 3, 31, 3, -2),
    Sketcher.Constraint("Symmetric", 3, 3, 35, 3, -2),
    Sketcher.Constraint("Symmetric", 18, 2, 19, 1, -2),
    Sketcher.Constraint("Symmetric", 39, 1, 78, 2, -2),
    Sketcher.Constraint("Perpendicular", 0, 20),
    Sketcher.Constraint("Perpendicular", 2, 22),
    Sketcher.Constraint("Perpendicular", 4, 24),
    Sketcher.Constraint("Perpendicular", 6, 26),
    Sketcher.Constraint("Perpendicular", 8, 28),
    Sketcher.Constraint("Perpendicular", 10, 30),
    Sketcher.Constraint("Perpendicular", 12, 32),
    Sketcher.Constraint("Perpendicular", 14, 34),
    Sketcher.Constraint("Perpendicular", 16, 36),
    Sketcher.Constraint("Perpendicular", 18, 38),
    Sketcher.Constraint("Perpendicular", 20, 40),
    Sketcher.Constraint("Perpendicular", 22, 42),
    Sketcher.Constraint("Perpendicular", 24, 44),
    Sketcher.Constraint("Perpendicular", 26, 46),
    Sketcher.Constraint("Perpendicular", 28, 48),
    Sketcher.Constraint("Perpendicular", 30, 50),
    Sketcher.Constraint("Perpendicular", 32, 52),
    Sketcher.Constraint("Perpendicular", 34, 54),
    Sketcher.Constraint("Perpendicular", 36, 56),
    Sketcher.Constraint("Perpendicular", 38, 58),
    Sketcher.Constraint("Perpendicular", 40, 60),
    Sketcher.Constraint("Perpendicular", 42, 62),
    Sketcher.Constraint("Perpendicular", 44, 64),
    Sketcher.Constraint("Perpendicular", 46, 66),
    Sketcher.Constraint("Perpendicular", 48, 68),
    Sketcher.Constraint("Perpendicular", 50, 70),
    Sketcher.Constraint("Perpendicular", 52, 72),
    Sketcher.Constraint("Perpendicular", 54, 74),
    Sketcher.Constraint("Perpendicular", 56, 76),
    Sketcher.Constraint("Horizontal", 16, 2, 21, 2),
    Sketcher.Constraint("Horizontal", 14, 2, 23, 1),
    Sketcher.Constraint("Horizontal", 12, 2, 25, 2),
    Sketcher.Constraint("Horizontal", 10, 2, 27, 1),
    Sketcher.Constraint("Equal", 0, 2),
    Sketcher.Constraint("Equal", 2, 4),
    Sketcher.Constraint("Equal", 4, 6),
    Sketcher.Constraint("Equal", 6, 8),
    Sketcher.Constraint("Equal", 8, 10),
    Sketcher.Constraint("Equal", 10, 12),
    Sketcher.Constraint("Equal", 12, 14),
    Sketcher.Constraint("Equal", 14, 16),
    Sketcher.Constraint("Equal", 16, 18),
    Sketcher.Constraint("Radius", 3, 0.7),
    Sketcher.Constraint("Radius", 81, 3.2),
    Sketcher.Constraint("Radius", 1, 6.11),
    Sketcher.Constraint("DistanceY", 80, 1, -1, 1, 2.3),
    Sketcher.Constraint("DistanceY", -1, 1, 19, 3, 5.31),
    Sketcher.Constraint("Distance", 0, 0.846342),
    Sketcher.Constraint("DistanceX", -1, 1, 3, 3, 5.05011),
    Sketcher.Constraint("DistanceY", -1, 1, 3, 3, 1.64088),
    Sketcher.Constraint("DistanceX", -1, 1, 7, 3, 4.29588),
    Sketcher.Constraint("DistanceY", -1, 1, 7, 3, 3.12114),
])
pad1 = body.newObject("PartDesign::Pad", "Pad")
pad1.Profile = sketch1
pad1.Length = 12

# Sketch on XY plane
sketch2 = body.newObject("Sketcher::SketchObject", "Sketch001")
sketch2.AttachmentSupport = (doc.getObject("XY_Plane"), [""])
sketch2.MapMode = "FlatFace"
sketch2.addGeometry([
    Part.Circle(V(0, 0, 0), V(0, 0, 1), 15),
    Part.LineSegment(V(2.2, -2.3, 0), V(-2.2, -2.3, 0)),
    Part.ArcOfCircle(Part.Circle(V(0, 0, 0), V(0, 0, 1), 3.2), math.radians(-46), math.radians(226)),
], False)
sketch2.addConstraint([
    Sketcher.Constraint("Coincident", 1, 1, 2, 1),
    Sketcher.Constraint("Coincident", 2, 2, 1, 2),
    Sketcher.Constraint("Horizontal", 1),
    Sketcher.Constraint("Coincident", 0, 3, -1, 1),
    Sketcher.Constraint("Coincident", 2, 3, -1, 1),
    Sketcher.Constraint("Diameter", 0, 30.0),
    Sketcher.Constraint("Radius", 2, 3.2),
    Sketcher.Constraint("DistanceY", 1, 1, -1, 1, 2.3),
])
pad2 = body.newObject("PartDesign::Pad", "Pad001")
pad2.Profile = sketch2
pad2.Length = 8
pad2.Reversed = True
doc.recompute()

fillet = body.newObject("PartDesign::Fillet", "Fillet")
fillet.Base = (pad2, edges_at(pad2, [(-15, 0, 0), (-15, 0, -8)]))
fillet.Radius = 2
doc.recompute()

fillet2 = body.newObject("PartDesign::Fillet", "Fillet001")
fillet2.Base = (fillet, edges_at(fillet, [(0, 3.2, 12), (0, -2.3, 12)]))
fillet2.Radius = 0.5

doc.recompute()
